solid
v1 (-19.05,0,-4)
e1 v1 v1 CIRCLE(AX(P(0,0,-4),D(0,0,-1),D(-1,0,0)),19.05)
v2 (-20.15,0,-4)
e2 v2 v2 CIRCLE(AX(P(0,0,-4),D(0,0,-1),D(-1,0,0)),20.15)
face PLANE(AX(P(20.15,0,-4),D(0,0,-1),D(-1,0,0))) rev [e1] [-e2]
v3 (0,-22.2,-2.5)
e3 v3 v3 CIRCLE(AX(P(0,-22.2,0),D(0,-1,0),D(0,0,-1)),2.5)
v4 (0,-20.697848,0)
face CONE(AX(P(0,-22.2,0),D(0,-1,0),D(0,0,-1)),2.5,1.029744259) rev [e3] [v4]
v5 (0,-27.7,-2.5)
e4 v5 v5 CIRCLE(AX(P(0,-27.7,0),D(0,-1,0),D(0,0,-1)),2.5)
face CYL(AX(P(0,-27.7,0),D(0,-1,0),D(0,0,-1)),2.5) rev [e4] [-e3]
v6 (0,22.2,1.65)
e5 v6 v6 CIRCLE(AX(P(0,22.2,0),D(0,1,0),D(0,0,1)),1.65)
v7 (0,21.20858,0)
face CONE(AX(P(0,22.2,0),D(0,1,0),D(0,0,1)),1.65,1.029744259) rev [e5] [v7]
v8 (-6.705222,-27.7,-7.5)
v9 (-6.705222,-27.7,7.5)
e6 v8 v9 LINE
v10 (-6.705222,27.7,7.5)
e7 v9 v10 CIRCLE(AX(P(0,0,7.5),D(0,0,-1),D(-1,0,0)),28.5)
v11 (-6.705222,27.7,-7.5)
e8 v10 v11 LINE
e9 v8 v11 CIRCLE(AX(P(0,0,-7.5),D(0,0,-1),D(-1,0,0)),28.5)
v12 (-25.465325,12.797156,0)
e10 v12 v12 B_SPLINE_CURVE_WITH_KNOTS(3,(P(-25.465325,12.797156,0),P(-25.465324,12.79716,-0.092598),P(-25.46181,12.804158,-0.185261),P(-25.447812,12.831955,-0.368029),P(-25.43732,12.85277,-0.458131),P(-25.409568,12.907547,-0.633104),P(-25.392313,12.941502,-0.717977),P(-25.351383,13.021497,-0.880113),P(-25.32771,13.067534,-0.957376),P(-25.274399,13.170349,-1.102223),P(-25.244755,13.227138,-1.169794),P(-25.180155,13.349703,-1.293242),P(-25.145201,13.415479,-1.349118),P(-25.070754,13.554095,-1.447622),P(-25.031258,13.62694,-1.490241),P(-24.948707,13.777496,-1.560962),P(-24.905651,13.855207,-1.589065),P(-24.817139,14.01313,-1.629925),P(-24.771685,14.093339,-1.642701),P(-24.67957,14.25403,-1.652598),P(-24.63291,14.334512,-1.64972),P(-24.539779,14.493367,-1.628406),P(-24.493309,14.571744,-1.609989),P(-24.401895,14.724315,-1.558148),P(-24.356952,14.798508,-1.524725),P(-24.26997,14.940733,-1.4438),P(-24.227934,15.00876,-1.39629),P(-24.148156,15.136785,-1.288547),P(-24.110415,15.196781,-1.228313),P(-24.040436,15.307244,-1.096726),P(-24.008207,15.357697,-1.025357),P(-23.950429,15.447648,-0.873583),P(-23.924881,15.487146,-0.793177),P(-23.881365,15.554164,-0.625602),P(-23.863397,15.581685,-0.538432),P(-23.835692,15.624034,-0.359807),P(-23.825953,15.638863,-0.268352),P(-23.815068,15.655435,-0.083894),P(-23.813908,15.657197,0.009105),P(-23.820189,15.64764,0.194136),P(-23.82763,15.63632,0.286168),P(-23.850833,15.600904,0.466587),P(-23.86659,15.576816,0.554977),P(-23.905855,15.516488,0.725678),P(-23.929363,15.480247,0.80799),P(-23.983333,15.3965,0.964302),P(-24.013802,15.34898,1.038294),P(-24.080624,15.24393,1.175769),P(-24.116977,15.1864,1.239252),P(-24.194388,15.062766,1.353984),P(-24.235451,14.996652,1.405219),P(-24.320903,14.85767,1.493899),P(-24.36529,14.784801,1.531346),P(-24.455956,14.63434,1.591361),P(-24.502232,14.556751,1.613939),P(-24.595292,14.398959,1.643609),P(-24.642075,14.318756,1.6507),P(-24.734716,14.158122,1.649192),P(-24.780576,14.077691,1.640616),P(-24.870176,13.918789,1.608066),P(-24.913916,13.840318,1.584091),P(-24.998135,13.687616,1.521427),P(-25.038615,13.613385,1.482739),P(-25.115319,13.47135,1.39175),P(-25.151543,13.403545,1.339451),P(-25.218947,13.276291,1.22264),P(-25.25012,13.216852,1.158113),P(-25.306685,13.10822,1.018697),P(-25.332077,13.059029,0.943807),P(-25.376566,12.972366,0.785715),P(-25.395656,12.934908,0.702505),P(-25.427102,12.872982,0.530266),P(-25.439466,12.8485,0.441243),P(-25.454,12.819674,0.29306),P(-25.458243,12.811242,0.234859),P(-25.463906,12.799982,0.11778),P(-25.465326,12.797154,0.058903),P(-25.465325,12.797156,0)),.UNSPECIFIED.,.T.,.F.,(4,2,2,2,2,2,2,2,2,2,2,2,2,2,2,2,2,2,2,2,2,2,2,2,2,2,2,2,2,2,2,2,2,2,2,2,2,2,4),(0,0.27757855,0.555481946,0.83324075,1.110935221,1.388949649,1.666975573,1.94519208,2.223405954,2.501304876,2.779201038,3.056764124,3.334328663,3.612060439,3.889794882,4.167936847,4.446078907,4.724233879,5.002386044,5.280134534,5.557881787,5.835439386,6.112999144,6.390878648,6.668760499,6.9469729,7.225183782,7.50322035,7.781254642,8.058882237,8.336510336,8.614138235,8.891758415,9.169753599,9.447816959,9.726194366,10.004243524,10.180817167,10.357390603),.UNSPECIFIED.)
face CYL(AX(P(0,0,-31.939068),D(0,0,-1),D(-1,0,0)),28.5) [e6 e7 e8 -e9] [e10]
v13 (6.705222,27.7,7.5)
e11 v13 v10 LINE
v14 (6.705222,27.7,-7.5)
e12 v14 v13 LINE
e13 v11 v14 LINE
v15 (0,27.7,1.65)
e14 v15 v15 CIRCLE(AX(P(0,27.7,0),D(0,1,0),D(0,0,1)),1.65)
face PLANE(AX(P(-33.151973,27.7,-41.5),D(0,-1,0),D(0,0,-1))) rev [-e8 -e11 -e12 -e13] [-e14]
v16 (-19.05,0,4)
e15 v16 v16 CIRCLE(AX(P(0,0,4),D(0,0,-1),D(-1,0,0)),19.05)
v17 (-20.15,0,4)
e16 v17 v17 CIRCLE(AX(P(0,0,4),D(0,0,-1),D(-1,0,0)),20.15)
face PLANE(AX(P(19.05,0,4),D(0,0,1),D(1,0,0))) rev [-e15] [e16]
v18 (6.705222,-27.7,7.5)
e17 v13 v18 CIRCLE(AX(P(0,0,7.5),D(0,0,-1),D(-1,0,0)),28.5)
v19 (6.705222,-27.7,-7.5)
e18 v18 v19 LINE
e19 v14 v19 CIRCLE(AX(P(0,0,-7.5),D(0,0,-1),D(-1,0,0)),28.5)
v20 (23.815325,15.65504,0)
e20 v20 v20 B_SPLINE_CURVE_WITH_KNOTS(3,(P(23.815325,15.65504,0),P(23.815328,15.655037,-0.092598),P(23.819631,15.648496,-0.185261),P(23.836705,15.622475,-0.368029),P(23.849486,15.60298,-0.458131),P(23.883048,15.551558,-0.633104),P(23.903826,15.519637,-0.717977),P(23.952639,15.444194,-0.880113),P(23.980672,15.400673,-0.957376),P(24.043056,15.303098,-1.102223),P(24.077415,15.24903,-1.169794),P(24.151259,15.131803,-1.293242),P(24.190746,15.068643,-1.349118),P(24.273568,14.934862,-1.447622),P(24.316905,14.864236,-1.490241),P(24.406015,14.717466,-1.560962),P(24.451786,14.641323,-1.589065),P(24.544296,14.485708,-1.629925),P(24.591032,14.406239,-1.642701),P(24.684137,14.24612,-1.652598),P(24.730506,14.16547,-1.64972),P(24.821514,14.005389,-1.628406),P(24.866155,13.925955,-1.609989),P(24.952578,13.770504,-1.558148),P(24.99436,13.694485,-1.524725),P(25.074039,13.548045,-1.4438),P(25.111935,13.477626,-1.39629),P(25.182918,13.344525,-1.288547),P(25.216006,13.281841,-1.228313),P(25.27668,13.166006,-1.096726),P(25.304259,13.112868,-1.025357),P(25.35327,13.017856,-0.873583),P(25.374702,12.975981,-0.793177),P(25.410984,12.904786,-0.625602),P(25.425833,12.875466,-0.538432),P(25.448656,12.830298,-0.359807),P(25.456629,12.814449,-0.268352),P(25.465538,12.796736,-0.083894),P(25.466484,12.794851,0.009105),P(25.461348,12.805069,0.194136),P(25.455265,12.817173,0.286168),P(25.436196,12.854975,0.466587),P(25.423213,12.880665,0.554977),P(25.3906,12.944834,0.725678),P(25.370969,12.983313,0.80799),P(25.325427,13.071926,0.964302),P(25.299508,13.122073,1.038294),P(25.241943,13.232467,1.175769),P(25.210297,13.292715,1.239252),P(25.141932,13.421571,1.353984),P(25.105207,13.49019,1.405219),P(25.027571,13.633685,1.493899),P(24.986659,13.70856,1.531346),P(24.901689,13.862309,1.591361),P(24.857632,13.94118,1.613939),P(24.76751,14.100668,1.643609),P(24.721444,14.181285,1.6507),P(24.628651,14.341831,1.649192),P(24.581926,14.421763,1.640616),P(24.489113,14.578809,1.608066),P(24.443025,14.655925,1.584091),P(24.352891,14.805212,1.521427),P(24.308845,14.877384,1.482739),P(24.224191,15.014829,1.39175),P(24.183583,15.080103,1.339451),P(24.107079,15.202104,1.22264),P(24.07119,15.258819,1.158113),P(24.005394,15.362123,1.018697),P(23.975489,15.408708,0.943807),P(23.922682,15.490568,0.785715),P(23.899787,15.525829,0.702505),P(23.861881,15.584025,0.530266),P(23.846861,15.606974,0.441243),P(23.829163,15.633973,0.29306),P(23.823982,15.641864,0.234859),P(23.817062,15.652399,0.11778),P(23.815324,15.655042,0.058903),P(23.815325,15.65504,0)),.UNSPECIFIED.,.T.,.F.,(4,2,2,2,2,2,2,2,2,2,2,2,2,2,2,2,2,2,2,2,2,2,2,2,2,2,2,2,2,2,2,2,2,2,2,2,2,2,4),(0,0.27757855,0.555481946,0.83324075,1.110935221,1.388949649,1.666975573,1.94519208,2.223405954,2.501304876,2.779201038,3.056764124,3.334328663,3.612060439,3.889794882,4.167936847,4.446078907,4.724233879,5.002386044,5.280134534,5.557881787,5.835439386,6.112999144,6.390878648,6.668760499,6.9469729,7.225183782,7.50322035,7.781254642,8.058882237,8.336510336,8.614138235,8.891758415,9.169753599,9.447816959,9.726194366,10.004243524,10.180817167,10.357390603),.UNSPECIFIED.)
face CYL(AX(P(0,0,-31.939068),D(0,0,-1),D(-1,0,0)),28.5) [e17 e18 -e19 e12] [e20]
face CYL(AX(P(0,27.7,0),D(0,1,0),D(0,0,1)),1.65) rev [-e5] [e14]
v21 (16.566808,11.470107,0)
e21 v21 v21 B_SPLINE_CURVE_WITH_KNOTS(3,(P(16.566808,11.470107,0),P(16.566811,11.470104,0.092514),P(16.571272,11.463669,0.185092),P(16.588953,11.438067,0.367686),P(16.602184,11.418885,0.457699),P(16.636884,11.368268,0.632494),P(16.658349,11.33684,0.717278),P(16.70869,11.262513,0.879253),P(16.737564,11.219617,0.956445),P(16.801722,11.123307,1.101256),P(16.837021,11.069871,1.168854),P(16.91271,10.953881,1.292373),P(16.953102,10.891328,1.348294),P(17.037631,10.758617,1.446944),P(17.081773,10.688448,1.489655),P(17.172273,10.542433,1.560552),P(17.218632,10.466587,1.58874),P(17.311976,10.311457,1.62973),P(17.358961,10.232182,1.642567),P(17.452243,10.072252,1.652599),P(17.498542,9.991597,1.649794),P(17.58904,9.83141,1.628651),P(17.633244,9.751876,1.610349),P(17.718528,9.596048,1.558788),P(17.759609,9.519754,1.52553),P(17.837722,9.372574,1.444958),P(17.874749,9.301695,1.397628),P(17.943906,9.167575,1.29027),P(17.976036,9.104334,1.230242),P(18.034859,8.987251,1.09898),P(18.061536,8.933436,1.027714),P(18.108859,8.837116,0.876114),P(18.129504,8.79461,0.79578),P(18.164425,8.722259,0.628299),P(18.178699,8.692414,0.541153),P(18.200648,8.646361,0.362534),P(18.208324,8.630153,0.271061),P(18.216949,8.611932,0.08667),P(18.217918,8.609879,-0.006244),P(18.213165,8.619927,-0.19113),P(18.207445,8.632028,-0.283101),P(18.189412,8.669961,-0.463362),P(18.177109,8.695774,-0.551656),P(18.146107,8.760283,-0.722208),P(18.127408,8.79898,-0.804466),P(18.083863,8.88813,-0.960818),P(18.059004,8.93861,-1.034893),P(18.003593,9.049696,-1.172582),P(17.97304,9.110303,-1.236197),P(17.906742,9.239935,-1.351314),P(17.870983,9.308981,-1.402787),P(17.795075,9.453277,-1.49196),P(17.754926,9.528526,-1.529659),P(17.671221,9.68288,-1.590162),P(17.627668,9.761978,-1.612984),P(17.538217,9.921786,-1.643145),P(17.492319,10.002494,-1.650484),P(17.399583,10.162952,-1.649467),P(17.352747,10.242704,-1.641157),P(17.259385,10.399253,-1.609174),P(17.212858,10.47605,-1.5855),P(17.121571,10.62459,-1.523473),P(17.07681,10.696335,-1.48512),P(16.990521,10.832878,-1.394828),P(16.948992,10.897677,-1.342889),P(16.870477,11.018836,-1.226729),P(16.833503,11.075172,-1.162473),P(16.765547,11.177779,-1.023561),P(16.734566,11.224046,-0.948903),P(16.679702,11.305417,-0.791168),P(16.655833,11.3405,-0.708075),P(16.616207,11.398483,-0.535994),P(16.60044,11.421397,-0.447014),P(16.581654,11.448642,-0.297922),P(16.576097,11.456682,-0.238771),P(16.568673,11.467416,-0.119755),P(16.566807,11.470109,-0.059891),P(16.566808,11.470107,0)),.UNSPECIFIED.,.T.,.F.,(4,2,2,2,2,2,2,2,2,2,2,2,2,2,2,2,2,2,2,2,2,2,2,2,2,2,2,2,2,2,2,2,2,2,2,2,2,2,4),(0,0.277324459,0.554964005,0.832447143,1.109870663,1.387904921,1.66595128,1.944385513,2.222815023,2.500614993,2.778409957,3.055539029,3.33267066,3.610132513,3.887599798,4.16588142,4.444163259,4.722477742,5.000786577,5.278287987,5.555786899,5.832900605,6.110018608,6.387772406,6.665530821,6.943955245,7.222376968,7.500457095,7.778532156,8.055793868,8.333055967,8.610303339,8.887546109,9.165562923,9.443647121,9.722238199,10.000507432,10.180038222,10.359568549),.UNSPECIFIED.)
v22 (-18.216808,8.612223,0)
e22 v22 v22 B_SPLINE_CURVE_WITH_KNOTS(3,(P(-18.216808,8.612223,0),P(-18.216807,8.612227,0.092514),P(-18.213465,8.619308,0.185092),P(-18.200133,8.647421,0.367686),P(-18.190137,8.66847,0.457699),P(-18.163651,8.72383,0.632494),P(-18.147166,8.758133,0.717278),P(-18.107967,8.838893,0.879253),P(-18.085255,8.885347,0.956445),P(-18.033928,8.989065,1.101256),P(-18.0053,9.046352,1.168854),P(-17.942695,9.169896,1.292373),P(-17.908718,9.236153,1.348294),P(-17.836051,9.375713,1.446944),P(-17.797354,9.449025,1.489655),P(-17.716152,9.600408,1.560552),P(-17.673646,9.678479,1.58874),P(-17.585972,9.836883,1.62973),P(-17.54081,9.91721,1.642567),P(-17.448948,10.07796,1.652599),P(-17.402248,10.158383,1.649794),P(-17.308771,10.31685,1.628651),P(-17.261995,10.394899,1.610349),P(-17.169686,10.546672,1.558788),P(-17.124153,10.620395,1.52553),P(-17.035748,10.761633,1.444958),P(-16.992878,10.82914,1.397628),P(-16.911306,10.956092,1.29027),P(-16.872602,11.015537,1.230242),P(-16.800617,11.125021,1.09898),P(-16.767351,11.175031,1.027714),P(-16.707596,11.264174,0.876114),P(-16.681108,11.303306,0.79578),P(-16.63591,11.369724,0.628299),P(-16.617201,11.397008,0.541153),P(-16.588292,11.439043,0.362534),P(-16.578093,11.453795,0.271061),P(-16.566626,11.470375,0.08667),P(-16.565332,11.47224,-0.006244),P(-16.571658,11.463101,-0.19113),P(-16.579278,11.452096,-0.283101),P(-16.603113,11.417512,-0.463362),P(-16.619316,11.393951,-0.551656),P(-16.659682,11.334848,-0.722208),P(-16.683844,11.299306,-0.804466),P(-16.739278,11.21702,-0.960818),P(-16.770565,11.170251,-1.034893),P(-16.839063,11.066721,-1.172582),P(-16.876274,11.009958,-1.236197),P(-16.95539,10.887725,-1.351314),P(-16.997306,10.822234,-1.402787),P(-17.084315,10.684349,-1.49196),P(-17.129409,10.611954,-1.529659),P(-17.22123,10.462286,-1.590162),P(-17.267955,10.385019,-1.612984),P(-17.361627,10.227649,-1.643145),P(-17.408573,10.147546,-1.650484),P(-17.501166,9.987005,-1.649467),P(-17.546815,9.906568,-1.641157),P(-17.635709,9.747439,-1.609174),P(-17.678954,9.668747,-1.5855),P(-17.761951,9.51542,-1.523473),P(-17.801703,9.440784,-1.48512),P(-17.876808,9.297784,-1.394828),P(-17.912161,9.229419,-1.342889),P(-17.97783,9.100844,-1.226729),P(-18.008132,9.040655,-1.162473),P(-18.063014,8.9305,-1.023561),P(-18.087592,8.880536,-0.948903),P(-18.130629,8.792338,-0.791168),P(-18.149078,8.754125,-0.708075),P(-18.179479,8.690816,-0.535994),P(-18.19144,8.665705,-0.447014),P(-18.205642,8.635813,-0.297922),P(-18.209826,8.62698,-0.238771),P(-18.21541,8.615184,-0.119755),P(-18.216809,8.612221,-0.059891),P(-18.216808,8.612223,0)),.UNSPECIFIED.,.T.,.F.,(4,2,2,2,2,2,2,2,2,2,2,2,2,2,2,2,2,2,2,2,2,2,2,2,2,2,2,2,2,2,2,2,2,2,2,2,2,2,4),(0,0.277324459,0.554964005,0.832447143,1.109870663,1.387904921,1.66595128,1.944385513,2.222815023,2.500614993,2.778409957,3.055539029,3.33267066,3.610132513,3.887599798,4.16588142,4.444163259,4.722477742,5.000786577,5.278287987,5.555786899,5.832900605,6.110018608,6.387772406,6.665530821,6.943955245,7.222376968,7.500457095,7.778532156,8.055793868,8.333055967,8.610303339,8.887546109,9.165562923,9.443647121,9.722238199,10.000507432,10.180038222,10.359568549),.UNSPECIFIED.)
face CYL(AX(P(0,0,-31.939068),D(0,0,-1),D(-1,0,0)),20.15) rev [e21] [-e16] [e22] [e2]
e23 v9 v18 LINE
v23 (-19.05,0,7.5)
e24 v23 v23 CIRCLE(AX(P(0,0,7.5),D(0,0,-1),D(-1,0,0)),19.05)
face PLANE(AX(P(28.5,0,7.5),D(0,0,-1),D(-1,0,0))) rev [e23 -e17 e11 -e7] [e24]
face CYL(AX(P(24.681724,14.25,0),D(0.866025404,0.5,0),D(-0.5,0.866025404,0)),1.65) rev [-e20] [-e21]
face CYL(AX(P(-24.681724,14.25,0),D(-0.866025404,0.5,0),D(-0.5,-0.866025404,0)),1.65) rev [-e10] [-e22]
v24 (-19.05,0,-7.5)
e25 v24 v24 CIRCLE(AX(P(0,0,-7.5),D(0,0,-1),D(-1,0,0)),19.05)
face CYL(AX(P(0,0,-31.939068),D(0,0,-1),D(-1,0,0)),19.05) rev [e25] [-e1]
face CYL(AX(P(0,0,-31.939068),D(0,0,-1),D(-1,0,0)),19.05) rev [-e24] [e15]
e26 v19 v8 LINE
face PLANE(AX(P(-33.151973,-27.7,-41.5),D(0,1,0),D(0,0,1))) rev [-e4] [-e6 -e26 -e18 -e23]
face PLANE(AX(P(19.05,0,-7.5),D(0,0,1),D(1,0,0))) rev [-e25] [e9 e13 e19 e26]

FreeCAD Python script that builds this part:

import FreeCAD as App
import Part
import Sketcher

doc = App.newDocument("Part")
body = doc.addObject("PartDesign::Body", "Body")

# Sketch on XZ plane
sketch1 = doc.addObject("Sketcher::SketchObject", "Sketch")
body.addObject(sketch1)
sketch1.AttachmentSupport = (doc.XZ_Plane, [""])
sketch1.MapMode = "FlatFace"
sketch1.addGeometry(Part.LineSegment(App.Vector(28.5, 7.5, 0), App.Vector(28.5, -7.5, 0)), False)
sketch1.addGeometry(Part.LineSegment(App.Vector(28.5, -7.5, 0), App.Vector(19.1, -7.5, 0)), False)
sketch1.addGeometry(Part.LineSegment(App.Vector(19.1, -7.5, 0), App.Vector(19.1, -4, 0)), False)
sketch1.addGeometry(Part.LineSegment(App.Vector(19.1, -4, 0), App.Vector(20.1, -4, 0)), False)
sketch1.addGeometry(Part.LineSegment(App.Vector(20.1, -4, 0), App.Vector(20.1, 4, 0)), False)
sketch1.addGeometry(Part.LineSegment(App.Vector(20.1, 4, 0), App.Vector(19.1, 4, 0)), False)
sketch1.addGeometry(Part.LineSegment(App.Vector(19.1, 4, 0), App.Vector(19.1, 7.5, 0)), False)
sketch1.addGeometry(Part.LineSegment(App.Vector(19.1, 7.5, 0), App.Vector(28.5, 7.5, 0)), False)
sketch1.addConstraint(Sketcher.Constraint("Coincident", 0, 2, 1, 1))
sketch1.addConstraint(Sketcher.Constraint("Coincident", 1, 2, 2, 1))
sketch1.addConstraint(Sketcher.Constraint("Coincident", 2, 2, 3, 1))
sketch1.addConstraint(Sketcher.Constraint("Coincident", 3, 2, 4, 1))
sketch1.addConstraint(Sketcher.Constraint("Coincident", 4, 2, 5, 1))
sketch1.addConstraint(Sketcher.Constraint("Coincident", 5, 2, 6, 1))
sketch1.addConstraint(Sketcher.Constraint("Coincident", 6, 2, 7, 1))
sketch1.addConstraint(Sketcher.Constraint("Coincident", 7, 2, 0, 1))
sketch1.addConstraint(Sketcher.Constraint("Vertical", 0))
sketch1.addConstraint(Sketcher.Constraint("Horizontal", 1))
sketch1.addConstraint(Sketcher.Constraint("Vertical", 2))
sketch1.addConstraint(Sketcher.Constraint("Horizontal", 3))
sketch1.addConstraint(Sketcher.Constraint("Vertical", 4))
sketch1.addConstraint(Sketcher.Constraint("Horizontal", 5))
sketch1.addConstraint(Sketcher.Constraint("Vertical", 6))
sketch1.addConstraint(Sketcher.Constraint("Horizontal", 7))
sketch1.addConstraint(Sketcher.Constraint("Symmetric", 2, 2, 5, 2, -1))
sketch1.addConstraint(Sketcher.Constraint("Equal", 2, 6))
sketch1.addConstraint(Sketcher.Constraint("DistanceY", 0, 2, 0, 1, 15.0))
sketch1.addConstraint(Sketcher.Constraint("DistanceY", 4, 1, 4, 2, 8.0))
sketch1.addConstraint(Sketcher.Constraint("DistanceX", 3, 1, 3, 2, 1.1))
sketch1.addConstraint(Sketcher.Constraint("DistanceX", 1, 2, 1, 1, 9.45))
sketch1.addConstraint(Sketcher.Constraint("DistanceX", -1, 1, 0, 2, 28.5))
revolution = doc.addObject("PartDesign::Revolution", "Revolution")
body.addObject(revolution)
revolution.Profile = sketch1
revolution.ReferenceAxis = (sketch1, ["V_Axis"])
revolution.Angle = 360

# Sketch on XY plane
sketch2 = doc.addObject("Sketcher::SketchObject", "Sketch001")
body.addObject(sketch2)
sketch2.AttachmentSupport = (doc.XY_Plane, [""])
sketch2.MapMode = "FlatFace"
sketch2.AttachmentOffset = App.Placement(App.Vector(0, 0, 7.5), App.Rotation())
sketch2.addGeometry(Part.LineSegment(App.Vector(-33, 37, 0), App.Vector(-33, 28, 0)), False)
sketch2.addGeometry(Part.LineSegment(App.Vector(-33, 28, 0), App.Vector(31, 28, 0)), False)
sketch2.addGeometry(Part.LineSegment(App.Vector(31, 28, 0), App.Vector(31, 37, 0)), False)
sketch2.addGeometry(Part.LineSegment(App.Vector(31, 37, 0), App.Vector(-33, 37, 0)), False)
sketch2.addGeometry(Part.LineSegment(App.Vector(-33, -28, 0), App.Vector(-33, -37, 0)), False)
sketch2.addGeometry(Part.LineSegment(App.Vector(-33, -37, 0), App.Vector(31, -37, 0)), False)
sketch2.addGeometry(Part.LineSegment(App.Vector(31, -37, 0), App.Vector(31, -28, 0)), False)
sketch2.addGeometry(Part.LineSegment(App.Vector(31, -28, 0), App.Vector(-33, -28, 0)), False)
sketch2.addConstraint(Sketcher.Constraint("Coincident", 0, 2, 1, 1))
sketch2.addConstraint(Sketcher.Constraint("Coincident", 1, 2, 2, 1))
sketch2.addConstraint(Sketcher.Constraint("Coincident", 2, 2, 3, 1))
sketch2.addConstraint(Sketcher.Constraint("Coincident", 3, 2, 0, 1))
sketch2.addConstraint(Sketcher.Constraint("Coincident", 4, 2, 5, 1))
sketch2.addConstraint(Sketcher.Constraint("Coincident", 5, 2, 6, 1))
sketch2.addConstraint(Sketcher.Constraint("Coincident", 6, 2, 7, 1))
sketch2.addConstraint(Sketcher.Constraint("Coincident", 7, 2, 4, 1))
sketch2.addConstraint(Sketcher.Constraint("Vertical", 0))
sketch2.addConstraint(Sketcher.Constraint("Horizontal", 1))
sketch2.addConstraint(Sketcher.Constraint("Vertical", 2))
sketch2.addConstraint(Sketcher.Constraint("Horizontal", 3))
sketch2.addConstraint(Sketcher.Constraint("Vertical", 4))
sketch2.addConstraint(Sketcher.Constraint("Horizontal", 5))
sketch2.addConstraint(Sketcher.Constraint("Vertical", 6))
sketch2.addConstraint(Sketcher.Constraint("Horizontal", 7))
sketch2.addConstraint(Sketcher.Constraint("Symmetric", 3, 2, 4, 2, -1))
sketch2.addConstraint(Sketcher.Constraint("Symmetric", 1, 2, 6, 2, -1))
sketch2.addConstraint(Sketcher.Constraint("DistanceY", -1, 1, 0, 2, 27.7))
sketch2.addConstraint(Sketcher.Constraint("DistanceY", 0, 2, 0, 1, 9.24892))
sketch2.addConstraint(Sketcher.Constraint("DistanceX", 1, 1, 1, 2, 64.021744))
sketch2.addConstraint(Sketcher.Constraint("DistanceX", -1, 1, 1, 2, 30.869772))
pocket1 = doc.addObject("PartDesign::Pocket", "Pocket")
body.addObject(pocket1)
pocket1.Profile = sketch2
pocket1.Length = 49

# Sketch on XZ plane
sketch3 = doc.addObject("Sketcher::SketchObject", "Sketch002")
body.addObject(sketch3)
sketch3.AttachmentSupport = (doc.XZ_Plane, [""])
sketch3.MapMode = "FlatFace"
sketch3.AttachmentOffset = App.Placement(App.Vector(0, 0, -27.7), App.Rotation())
sketch3.addGeometry(Part.Circle(App.Vector(0, 0, 0), App.Vector(0, 0, 1), 1.6), False)
sketch3.addConstraint(Sketcher.Constraint("Coincident", 0, 3, -1, 1))
sketch3.addConstraint(Sketcher.Constraint("Diameter", 0, 3.3))
doc.recompute()
hole = doc.addObject("PartDesign::Hole", "Hole")
body.addObject(hole)
hole.Profile = sketch3
hole.ThreadType = "None"
hole.Diameter = 3.3
hole.DepthType = "Dimension"
hole.Depth = 5.5
hole.DrillPoint = "Angled"
hole.DrillPointAngle = 118
hole.Reversed = True

# Sketch on XZ plane
sketch4 = doc.addObject("Sketcher::SketchObject", "Sketch003")
body.addObject(sketch4)
sketch4.AttachmentSupport = (doc.XZ_Plane, [""])
sketch4.MapMode = "FlatFace"
sketch4.AttachmentOffset = App.Placement(App.Vector(0, 0, 27.7), App.Rotation())
sketch4.addGeometry(Part.Circle(App.Vector(0, 0, 0), App.Vector(0, 0, 1), 2.5), False)
sketch4.addConstraint(Sketcher.Constraint("Coincident", 0, 3, -1, 1))
sketch4.addConstraint(Sketcher.Constraint("Diameter", 0, 5.0))
doc.recompute()
hole2 = doc.addObject("PartDesign::Hole", "Hole001")
body.addObject(hole2)
hole2.Profile = sketch4
hole2.ThreadType = "None"
hole2.Diameter = 5
hole2.DepthType = "Dimension"
hole2.Depth = 5.5
hole2.DrillPoint = "Angled"
hole2.DrillPointAngle = 118

# Sketch on an angled plane
sketch5 = doc.addObject("Sketcher::SketchObject", "Sketch004")
body.addObject(sketch5)
sketch5.Placement = App.Placement(App.Vector(24.681724, 14.25, 0), App.Rotation(App.Vector(-0.5, 0.866025404, 0), App.Vector(0, 0, 1), App.Vector(0.866025404, 0.5, 0), "ZXY"))
sketch5.addGeometry(Part.Circle(App.Vector(0, 0, 0), App.Vector(0, 0, 1), 1.6), False)
sketch5.addConstraint(Sketcher.Constraint("Coincident", 0, 3, -1, 1))
sketch5.addConstraint(Sketcher.Constraint("Diameter", 0, 3.3))
doc.recompute()
hole3 = doc.addObject("PartDesign::Hole", "Hole002")
body.addObject(hole3)
hole3.Profile = sketch5
hole3.ThreadType = "None"
hole3.Diameter = 3.3
hole3.DepthType = "Dimension"
hole3.Depth = 13.4
hole3.DrillPoint = "Angled"
hole3.DrillPointAngle = 118

# Sketch on an angled plane
sketch6 = doc.addObject("Sketcher::SketchObject", "Sketch005")
body.addObject(sketch6)
sketch6.Placement = App.Placement(App.Vector(-24.681721, 14.250005, 0), App.Rotation(App.Vector(-0.500000175, -0.866025303, 0), App.Vector(0, 0, 1), App.Vector(-0.866025303, 0.500000175, 0), "ZXY"))
sketch6.addGeometry(Part.Circle(App.Vector(0, 0, 0), App.Vector(0, 0, 1), 1.6), False)
sketch6.addConstraint(Sketcher.Constraint("Coincident", 0, 3, -1, 1))
sketch6.addConstraint(Sketcher.Constraint("Diameter", 0, 3.3))
doc.recompute()
hole4 = doc.addObject("PartDesign::Hole", "Hole003")
body.addObject(hole4)
hole4.Profile = sketch6
hole4.ThreadType = "None"
hole4.Diameter = 3.3
hole4.DepthType = "Dimension"
hole4.Depth = 13.4
hole4.DrillPoint = "Angled"
hole4.DrillPointAngle = 118

doc.recompute()
